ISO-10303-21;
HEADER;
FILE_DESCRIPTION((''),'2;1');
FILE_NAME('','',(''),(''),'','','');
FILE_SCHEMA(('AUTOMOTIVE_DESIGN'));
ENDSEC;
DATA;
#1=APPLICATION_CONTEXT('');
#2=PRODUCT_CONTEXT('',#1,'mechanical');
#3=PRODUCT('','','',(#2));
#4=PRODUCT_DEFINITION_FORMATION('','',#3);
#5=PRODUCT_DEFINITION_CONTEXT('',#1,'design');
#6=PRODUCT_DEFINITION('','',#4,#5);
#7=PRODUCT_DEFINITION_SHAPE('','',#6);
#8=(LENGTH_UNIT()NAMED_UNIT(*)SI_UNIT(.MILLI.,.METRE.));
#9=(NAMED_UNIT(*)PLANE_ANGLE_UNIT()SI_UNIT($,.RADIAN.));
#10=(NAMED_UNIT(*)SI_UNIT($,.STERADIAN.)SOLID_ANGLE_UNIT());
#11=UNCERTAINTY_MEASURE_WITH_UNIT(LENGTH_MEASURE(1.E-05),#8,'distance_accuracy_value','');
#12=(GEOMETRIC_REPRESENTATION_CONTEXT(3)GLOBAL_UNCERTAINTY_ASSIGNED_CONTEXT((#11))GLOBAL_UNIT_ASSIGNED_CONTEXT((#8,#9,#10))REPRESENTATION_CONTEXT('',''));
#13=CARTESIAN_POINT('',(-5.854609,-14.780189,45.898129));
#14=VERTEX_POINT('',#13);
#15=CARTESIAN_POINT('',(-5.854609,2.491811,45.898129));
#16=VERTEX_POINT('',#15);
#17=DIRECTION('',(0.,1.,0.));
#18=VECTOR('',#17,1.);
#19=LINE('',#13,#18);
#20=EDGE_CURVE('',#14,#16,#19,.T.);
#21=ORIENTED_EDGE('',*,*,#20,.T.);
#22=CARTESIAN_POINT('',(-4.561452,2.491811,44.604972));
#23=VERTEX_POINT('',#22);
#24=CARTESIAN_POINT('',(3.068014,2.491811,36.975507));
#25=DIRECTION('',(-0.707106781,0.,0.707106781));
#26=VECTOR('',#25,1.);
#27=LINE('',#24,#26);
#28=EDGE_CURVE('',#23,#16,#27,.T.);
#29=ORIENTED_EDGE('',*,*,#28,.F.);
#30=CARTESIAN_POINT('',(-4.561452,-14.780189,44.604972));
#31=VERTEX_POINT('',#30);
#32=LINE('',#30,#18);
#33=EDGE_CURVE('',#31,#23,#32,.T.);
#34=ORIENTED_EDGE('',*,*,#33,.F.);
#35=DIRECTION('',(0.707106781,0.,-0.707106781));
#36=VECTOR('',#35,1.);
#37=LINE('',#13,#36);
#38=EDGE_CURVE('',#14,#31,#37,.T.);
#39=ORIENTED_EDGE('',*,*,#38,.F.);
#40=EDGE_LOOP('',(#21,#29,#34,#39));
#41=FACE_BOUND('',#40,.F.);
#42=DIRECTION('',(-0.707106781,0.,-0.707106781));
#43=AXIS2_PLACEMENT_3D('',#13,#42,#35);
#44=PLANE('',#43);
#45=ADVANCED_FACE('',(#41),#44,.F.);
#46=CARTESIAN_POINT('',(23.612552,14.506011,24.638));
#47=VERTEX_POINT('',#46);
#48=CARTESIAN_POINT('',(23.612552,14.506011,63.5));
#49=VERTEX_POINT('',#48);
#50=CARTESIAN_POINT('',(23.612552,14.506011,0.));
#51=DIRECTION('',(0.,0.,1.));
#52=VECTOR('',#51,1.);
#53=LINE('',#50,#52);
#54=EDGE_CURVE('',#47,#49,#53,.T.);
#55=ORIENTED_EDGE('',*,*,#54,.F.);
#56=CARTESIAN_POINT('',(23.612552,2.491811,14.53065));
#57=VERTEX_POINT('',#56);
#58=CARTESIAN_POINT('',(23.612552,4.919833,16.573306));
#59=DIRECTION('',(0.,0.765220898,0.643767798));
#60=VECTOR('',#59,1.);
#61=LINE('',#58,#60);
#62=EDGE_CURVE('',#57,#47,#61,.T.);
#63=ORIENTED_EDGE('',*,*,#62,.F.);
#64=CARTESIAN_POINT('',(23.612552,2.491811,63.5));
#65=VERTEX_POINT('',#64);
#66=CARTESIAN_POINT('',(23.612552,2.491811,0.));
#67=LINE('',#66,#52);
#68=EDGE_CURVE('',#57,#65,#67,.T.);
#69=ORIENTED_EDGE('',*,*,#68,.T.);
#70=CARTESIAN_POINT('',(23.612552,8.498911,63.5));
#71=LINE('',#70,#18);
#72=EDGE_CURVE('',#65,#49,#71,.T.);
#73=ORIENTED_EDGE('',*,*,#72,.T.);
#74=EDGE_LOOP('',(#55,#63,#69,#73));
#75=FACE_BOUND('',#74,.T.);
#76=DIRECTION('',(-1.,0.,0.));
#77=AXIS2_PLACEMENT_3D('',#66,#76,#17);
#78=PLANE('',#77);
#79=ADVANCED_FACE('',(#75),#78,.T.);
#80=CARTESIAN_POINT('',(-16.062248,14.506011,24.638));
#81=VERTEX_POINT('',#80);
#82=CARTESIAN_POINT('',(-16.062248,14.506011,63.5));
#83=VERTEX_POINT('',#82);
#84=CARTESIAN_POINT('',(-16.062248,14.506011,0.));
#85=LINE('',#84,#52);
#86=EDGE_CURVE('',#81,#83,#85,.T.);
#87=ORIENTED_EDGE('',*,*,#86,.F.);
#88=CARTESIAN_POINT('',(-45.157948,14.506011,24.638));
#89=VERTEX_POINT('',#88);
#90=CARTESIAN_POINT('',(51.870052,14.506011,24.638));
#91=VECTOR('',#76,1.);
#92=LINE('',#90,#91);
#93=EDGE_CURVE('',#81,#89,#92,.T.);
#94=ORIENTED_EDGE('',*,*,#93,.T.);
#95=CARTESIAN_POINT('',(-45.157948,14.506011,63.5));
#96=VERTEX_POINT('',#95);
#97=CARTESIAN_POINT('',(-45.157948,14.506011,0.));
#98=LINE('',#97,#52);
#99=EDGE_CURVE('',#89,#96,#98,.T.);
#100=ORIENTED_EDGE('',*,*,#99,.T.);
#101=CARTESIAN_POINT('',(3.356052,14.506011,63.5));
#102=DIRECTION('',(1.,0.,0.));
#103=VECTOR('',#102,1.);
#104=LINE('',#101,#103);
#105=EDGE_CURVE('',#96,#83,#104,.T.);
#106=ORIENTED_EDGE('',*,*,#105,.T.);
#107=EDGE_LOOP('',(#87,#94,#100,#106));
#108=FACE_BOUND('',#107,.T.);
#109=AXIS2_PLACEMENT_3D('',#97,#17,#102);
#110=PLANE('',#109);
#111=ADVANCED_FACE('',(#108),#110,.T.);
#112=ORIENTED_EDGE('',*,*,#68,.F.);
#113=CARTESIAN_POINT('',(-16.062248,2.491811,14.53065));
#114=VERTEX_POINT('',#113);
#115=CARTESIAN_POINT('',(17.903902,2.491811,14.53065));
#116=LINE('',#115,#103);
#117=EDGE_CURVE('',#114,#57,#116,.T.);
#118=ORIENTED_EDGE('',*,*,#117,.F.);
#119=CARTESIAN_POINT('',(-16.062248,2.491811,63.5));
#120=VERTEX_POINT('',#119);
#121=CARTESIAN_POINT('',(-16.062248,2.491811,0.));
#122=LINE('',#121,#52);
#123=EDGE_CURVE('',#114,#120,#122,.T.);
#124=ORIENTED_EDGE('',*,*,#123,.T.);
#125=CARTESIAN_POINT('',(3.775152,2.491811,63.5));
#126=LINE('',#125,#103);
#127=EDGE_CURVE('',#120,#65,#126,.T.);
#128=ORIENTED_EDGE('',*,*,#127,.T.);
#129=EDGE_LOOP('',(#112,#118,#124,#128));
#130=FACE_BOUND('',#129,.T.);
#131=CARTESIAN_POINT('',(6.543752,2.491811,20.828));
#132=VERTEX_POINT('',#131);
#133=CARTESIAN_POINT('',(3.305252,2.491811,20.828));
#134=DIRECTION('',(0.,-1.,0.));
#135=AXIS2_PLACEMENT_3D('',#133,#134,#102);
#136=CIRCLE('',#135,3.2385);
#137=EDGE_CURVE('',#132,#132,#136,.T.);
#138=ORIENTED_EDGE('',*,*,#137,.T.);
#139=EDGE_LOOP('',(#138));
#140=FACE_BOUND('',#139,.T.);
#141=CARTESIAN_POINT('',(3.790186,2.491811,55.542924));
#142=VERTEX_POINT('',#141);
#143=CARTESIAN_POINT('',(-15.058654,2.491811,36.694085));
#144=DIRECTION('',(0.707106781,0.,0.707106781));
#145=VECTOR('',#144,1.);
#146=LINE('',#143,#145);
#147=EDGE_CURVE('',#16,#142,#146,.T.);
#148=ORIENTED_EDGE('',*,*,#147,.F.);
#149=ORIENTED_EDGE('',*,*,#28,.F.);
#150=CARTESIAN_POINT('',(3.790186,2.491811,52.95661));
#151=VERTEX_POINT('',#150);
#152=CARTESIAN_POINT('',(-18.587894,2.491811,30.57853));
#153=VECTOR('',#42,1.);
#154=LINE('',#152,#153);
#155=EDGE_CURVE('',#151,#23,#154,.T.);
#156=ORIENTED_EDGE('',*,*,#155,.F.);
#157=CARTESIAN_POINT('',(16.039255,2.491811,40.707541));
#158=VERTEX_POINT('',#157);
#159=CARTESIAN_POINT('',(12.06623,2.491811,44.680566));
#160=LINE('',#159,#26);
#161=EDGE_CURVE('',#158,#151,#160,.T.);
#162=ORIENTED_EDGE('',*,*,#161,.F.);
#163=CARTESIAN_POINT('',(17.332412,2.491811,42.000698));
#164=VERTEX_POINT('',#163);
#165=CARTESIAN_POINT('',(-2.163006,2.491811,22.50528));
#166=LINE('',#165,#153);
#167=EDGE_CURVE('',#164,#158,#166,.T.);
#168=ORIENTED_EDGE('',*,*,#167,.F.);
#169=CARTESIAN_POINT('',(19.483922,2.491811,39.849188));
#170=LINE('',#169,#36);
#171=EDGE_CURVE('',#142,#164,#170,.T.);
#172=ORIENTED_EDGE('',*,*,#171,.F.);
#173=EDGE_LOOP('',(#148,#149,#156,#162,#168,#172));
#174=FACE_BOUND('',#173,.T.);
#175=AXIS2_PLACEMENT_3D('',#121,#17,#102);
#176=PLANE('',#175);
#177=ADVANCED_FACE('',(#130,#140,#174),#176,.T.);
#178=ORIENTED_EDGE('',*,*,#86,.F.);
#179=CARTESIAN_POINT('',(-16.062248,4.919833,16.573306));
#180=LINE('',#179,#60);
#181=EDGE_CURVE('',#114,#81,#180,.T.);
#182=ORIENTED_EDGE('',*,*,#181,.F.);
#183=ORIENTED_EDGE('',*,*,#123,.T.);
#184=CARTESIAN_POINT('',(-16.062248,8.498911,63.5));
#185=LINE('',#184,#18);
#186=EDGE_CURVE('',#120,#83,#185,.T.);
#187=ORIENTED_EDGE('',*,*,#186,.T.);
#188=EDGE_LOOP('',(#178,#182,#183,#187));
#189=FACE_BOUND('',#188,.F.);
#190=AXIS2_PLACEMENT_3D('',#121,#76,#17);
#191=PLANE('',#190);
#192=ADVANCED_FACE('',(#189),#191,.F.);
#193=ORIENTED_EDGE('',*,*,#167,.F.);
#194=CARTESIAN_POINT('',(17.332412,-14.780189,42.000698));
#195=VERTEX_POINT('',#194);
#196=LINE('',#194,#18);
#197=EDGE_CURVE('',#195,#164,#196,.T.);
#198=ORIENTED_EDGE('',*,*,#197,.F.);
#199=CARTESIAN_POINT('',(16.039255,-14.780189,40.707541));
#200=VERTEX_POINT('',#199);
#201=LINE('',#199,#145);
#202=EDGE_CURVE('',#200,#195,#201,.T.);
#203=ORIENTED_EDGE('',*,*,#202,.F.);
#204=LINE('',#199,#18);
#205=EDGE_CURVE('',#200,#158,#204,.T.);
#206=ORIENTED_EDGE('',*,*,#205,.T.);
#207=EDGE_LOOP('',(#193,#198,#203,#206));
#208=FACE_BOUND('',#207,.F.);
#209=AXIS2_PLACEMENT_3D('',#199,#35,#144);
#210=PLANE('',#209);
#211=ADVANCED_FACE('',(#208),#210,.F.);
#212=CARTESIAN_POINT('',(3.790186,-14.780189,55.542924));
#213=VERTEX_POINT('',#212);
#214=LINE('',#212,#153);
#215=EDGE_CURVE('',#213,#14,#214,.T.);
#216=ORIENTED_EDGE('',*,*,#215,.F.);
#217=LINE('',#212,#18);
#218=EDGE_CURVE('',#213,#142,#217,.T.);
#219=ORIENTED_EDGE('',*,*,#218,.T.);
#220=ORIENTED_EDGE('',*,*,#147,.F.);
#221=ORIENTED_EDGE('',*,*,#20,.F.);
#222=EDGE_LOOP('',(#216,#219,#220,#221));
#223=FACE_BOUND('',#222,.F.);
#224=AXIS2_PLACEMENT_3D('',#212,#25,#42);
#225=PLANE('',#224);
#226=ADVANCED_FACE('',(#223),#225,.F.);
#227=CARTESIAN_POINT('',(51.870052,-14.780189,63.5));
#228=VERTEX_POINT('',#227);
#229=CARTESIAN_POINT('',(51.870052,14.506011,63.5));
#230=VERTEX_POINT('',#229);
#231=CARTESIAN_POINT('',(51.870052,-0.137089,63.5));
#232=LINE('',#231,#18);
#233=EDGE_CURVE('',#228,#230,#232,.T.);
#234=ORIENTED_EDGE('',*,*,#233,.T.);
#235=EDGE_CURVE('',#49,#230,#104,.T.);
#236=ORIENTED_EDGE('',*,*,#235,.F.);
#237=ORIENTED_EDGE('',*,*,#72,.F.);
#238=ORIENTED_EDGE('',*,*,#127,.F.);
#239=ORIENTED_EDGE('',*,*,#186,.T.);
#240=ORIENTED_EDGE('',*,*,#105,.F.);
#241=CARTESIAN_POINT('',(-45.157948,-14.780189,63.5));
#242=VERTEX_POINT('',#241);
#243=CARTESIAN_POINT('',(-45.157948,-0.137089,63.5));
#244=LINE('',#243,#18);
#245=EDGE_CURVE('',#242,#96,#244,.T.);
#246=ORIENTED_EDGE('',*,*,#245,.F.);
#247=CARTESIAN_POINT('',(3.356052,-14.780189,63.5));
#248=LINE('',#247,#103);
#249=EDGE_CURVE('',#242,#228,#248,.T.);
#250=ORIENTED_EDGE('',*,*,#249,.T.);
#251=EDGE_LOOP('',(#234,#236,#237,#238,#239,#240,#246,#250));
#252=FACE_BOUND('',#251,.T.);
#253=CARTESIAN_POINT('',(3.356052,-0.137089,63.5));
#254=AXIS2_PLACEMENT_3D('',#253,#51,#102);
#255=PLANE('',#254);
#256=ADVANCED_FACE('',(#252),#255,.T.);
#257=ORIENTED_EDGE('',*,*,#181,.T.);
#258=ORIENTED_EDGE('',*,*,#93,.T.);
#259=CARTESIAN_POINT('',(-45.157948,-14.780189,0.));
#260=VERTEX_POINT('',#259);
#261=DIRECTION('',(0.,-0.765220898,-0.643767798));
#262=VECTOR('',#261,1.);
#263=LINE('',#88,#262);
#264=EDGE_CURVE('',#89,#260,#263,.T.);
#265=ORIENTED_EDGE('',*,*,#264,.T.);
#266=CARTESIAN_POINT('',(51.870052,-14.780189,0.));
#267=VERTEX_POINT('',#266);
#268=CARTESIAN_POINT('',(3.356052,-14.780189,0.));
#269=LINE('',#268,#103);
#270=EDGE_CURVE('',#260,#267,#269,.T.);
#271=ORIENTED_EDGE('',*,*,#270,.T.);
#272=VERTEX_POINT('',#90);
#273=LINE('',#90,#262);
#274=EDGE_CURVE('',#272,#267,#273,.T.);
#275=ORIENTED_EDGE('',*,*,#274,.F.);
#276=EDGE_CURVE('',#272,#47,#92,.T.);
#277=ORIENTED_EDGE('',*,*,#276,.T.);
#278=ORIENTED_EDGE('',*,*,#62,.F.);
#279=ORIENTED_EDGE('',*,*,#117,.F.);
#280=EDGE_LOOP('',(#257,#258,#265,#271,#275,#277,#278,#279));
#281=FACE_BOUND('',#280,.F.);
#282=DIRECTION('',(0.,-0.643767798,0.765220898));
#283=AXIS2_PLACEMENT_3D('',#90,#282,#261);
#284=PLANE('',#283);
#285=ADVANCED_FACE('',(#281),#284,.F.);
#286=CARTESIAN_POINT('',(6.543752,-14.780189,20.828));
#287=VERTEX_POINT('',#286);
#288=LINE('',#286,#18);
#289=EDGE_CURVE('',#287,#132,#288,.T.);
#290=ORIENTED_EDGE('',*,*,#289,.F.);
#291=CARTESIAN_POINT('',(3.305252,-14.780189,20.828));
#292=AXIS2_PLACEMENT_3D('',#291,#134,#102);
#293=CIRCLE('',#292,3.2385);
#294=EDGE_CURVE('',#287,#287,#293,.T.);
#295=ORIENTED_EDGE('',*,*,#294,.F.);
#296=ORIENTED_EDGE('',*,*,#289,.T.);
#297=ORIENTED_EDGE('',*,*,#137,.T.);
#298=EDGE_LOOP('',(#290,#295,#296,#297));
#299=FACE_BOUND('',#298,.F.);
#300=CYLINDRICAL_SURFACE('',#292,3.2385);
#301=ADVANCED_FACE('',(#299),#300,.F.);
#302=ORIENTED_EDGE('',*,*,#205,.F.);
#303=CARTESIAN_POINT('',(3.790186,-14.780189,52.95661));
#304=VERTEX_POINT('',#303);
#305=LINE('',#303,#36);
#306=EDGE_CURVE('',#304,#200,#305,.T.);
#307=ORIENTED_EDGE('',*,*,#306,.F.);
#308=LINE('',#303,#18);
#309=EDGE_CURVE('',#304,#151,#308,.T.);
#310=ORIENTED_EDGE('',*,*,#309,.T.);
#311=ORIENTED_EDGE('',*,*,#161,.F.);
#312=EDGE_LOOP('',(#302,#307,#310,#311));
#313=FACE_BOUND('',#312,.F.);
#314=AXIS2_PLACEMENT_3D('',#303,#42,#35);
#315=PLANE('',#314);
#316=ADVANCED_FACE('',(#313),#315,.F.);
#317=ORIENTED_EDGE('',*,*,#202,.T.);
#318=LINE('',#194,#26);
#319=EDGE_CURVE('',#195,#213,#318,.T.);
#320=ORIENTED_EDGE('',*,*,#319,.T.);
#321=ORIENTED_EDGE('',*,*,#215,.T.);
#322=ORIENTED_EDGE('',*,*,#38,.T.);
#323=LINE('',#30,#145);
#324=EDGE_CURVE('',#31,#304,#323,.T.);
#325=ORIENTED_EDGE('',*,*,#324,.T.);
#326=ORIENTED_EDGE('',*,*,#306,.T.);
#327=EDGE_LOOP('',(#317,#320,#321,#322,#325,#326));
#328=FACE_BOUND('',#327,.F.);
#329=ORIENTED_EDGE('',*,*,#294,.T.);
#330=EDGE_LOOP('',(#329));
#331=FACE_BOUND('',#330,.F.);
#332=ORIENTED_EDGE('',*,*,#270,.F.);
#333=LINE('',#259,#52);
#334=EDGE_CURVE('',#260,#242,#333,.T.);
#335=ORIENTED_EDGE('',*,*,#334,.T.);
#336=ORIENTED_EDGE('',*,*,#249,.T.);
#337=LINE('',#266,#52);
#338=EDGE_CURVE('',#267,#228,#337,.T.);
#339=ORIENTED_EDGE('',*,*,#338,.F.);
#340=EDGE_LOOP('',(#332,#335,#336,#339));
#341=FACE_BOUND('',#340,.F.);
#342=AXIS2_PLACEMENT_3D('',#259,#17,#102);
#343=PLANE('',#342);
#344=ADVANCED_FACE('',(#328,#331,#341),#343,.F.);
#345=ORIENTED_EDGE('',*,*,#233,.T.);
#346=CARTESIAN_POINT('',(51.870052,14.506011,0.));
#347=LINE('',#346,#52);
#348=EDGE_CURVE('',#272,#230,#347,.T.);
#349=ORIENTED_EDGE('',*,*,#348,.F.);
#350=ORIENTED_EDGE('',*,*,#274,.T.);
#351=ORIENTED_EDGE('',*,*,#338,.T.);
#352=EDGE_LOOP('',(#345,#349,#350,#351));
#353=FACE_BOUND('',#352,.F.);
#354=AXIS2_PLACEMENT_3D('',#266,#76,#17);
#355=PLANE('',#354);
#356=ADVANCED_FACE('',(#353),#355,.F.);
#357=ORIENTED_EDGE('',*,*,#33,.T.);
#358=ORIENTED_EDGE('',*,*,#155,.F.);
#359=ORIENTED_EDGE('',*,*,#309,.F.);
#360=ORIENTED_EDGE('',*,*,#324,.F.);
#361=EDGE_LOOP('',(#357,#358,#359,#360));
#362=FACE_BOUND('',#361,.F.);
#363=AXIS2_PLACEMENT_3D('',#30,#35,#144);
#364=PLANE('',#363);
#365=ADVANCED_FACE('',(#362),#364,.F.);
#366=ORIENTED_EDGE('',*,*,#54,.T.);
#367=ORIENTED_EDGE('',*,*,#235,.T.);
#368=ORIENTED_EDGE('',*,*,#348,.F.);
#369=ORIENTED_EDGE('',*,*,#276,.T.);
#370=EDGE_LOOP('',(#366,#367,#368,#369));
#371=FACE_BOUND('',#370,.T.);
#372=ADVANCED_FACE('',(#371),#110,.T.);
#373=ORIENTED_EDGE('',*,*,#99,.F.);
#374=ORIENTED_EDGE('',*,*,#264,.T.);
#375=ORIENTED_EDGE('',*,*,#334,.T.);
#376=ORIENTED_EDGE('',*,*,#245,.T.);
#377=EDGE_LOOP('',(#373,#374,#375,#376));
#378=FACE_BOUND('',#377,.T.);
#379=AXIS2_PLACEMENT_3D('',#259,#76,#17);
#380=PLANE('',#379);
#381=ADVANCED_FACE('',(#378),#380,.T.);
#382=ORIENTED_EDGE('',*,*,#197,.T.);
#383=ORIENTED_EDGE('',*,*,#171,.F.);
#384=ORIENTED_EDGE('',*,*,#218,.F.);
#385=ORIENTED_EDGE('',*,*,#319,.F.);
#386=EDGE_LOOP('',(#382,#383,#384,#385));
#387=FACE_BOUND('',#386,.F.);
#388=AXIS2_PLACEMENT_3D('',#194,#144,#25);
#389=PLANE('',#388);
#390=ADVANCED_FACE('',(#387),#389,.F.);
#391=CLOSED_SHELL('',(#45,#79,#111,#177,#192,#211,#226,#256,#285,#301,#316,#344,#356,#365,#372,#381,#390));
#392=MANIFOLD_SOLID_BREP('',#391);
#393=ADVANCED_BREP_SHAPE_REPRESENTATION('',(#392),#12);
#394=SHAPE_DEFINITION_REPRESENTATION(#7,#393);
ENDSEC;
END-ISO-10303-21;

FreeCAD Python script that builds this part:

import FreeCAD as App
import Part
import Sketcher
from FreeCAD import Vector
Q = App.Units.Quantity


def add_polygon(sketch, points):
    """Adds a closed chain of lines whose ends are joined by coincident constraints."""
    first, n = sketch.GeometryCount, len(points)
    for a, b in zip(points, points[1:] + points[:1]):
        sketch.addGeometry(Part.LineSegment(App.Vector(*a, 0), App.Vector(*b, 0)), False)
    for i in range(n):
        sketch.addConstraint(Sketcher.Constraint("Coincident", first + i, 2, first + (i + 1) % n, 1))

doc = App.newDocument("Part")
body = doc.addObject("PartDesign::Body", "Body")

# Sketch on XY plane
sketch1 = body.newObject("Sketcher::SketchObject", "Sketch")
sketch1.AttachmentSupport = (doc.getObject("XY_Plane"), [""])
sketch1.MapMode = "FlatFace"
add_polygon(sketch1, [(-45, 15), (-45, -15), (52, -15), (52, 15)])  # lines 0-3
sketch1.addConstraint([
    Sketcher.Constraint("Vertical", 0),
    Sketcher.Constraint("Horizontal", 1),
    Sketcher.Constraint("Vertical", 2),
    Sketcher.Constraint("Horizontal", 3),
    Sketcher.Constraint("DistanceX", 1, 1, 1, 2, Q("3.82 in")),
    Sketcher.Constraint("DistanceY", 0, 2, 0, 1, Q("1.153 in")),
    Sketcher.Constraint("DistanceY", 0, 2, -1, 1, Q("14.780189 mm")),
    Sketcher.Constraint("DistanceX", 0, 2, -1, 1, Q("45.157948 mm")),
])
pad1 = body.newObject("PartDesign::Pad", "Pad")
pad1.Profile = sketch1
pad1.Length = Q("2.5 in")

# Sketch on XY plane
sketch2 = body.newObject("Sketcher::SketchObject", "Sketch001")
sketch2.AttachmentSupport = (doc.getObject("XY_Plane"), [""])
sketch2.MapMode = "FlatFace"
add_polygon(sketch2, [(-16, 15), (-16, 2), (24, 2), (24, 15)])  # lines 0-3
sketch2.addConstraint([
    Sketcher.Constraint("Vertical", 0),
    Sketcher.Constraint("Horizontal", 1),
    Sketcher.Constraint("Vertical", 2),
    Sketcher.Constraint("Horizontal", 3),
    Sketcher.Constraint("DistanceX", 1, 1, 1, 2, Q("1.562 in")),
    Sketcher.Constraint("DistanceY", 0, 2, 0, 1, Q("0.473 in")),
    Sketcher.Constraint("DistanceX", 0, 2, -1, 1, Q("16.062248 mm")),
    Sketcher.Constraint("DistanceY", -1, 1, 0, 2, Q("2.491811 mm")),
])
pocket1 = body.newObject("PartDesign::Pocket", "Pocket")
pocket1.Profile = sketch2
pocket1.Length = Q("2.5 in")
pocket1.Reversed = True

# Sketch on YZ plane
sketch3 = body.newObject("Sketcher::SketchObject", "Sketch002")
sketch3.AttachmentSupport = (doc.getObject("YZ_Plane"), [""])
sketch3.MapMode = "FlatFace"
sketch3.AttachmentOffset = App.Placement(Vector(0, 0, 51.870052), App.Rotation())
add_polygon(sketch3, [(15, 0), (15, 25), (-15, 0)])  # lines 0-2
sketch3.addConstraint([
    Sketcher.Constraint("Vertical", 0),
    Sketcher.Constraint("Horizontal", 2),
    Sketcher.Constraint("PointOnObject", 1, 2, -1),
    Sketcher.Constraint("DistanceY", 0, 1, 0, 2, Q("0.97 in")),
    Sketcher.Constraint("DistanceX", 2, 1, 2, 2, Q("1.153 in")),
    Sketcher.Constraint("DistanceX", -1, 1, 0, 2, Q("14.506011 mm")),
])
pocket2 = body.newObject("PartDesign::Pocket", "Pocket001")
pocket2.Profile = sketch3
pocket2.Length = Q("3.82 in")

# Sketch on XZ plane
sketch4 = body.newObject("Sketcher::SketchObject", "Sketch003")
sketch4.AttachmentSupport = (doc.getObject("XZ_Plane"), [""])
sketch4.MapMode = "FlatFace"
sketch4.AttachmentOffset = App.Placement(Vector(0, 0, 14.780189), App.Rotation())
sketch4.addGeometry(Part.Circle(Vector(3.3, 20.8, 0), Vector(0, 0, 1), 3.2), False)
sketch4.addConstraint([
    Sketcher.Constraint("Diameter", 0, Q("0.255 in")),
    Sketcher.Constraint("DistanceY", -1, 1, 0, 3, Q("0.82 in")),
    Sketcher.Constraint("DistanceX", -1, 1, 0, 3, Q("3.305252 mm")),
])
pocket3 = body.newObject("PartDesign::Pocket", "Pocket002")
pocket3.Profile = sketch4
pocket3.Length = Q("1 in")

# Sketch on XZ plane
sketch5 = body.newObject("Sketcher::SketchObject", "Sketch004")
sketch5.AttachmentSupport = (doc.getObject("XZ_Plane"), [""])
sketch5.MapMode = "FlatFace"
sketch5.AttachmentOffset = App.Placement(Vector(0, 0, 14.780189), App.Rotation())
add_polygon(sketch5, [(17.3, 42), (3.8, 55.5), (-5.9, 45.9), (-4.6, 44.6), (3.8, 53), (16, 40.7)])  # lines 0-5
sketch5.addConstraint([
    Sketcher.Constraint("Perpendicular", 0, 1),
    Sketcher.Constraint("Perpendicular", 1, 2),
    Sketcher.Constraint("Perpendicular", 2, 3),
    Sketcher.Constraint("Perpendicular", 3, 4),
    Sketcher.Constraint("Perpendicular", 4, 5),
    Sketcher.Constraint("Vertical", 0, 2, 3, 2),
    Sketcher.Constraint("Equal", 2, 5),
    Sketcher.Constraint("Distance", 0, Q("0.754 in")),
    Sketcher.Constraint("Distance", 1, Q("0.537 in")),
    Sketcher.Constraint("Distance", 2, Q("0.072 in")),
    Sketcher.Constraint("DistanceX", 1, 2, -1, 1, Q("5.854609 mm")),
    Sketcher.Constraint("DistanceY", -1, 1, 1, 2, Q("45.898129 mm")),
])
pocket4 = body.newObject("PartDesign::Pocket", "Pocket003")
pocket4.Profile = sketch5
pocket4.Length = Q("1 in")

doc.recompute()
